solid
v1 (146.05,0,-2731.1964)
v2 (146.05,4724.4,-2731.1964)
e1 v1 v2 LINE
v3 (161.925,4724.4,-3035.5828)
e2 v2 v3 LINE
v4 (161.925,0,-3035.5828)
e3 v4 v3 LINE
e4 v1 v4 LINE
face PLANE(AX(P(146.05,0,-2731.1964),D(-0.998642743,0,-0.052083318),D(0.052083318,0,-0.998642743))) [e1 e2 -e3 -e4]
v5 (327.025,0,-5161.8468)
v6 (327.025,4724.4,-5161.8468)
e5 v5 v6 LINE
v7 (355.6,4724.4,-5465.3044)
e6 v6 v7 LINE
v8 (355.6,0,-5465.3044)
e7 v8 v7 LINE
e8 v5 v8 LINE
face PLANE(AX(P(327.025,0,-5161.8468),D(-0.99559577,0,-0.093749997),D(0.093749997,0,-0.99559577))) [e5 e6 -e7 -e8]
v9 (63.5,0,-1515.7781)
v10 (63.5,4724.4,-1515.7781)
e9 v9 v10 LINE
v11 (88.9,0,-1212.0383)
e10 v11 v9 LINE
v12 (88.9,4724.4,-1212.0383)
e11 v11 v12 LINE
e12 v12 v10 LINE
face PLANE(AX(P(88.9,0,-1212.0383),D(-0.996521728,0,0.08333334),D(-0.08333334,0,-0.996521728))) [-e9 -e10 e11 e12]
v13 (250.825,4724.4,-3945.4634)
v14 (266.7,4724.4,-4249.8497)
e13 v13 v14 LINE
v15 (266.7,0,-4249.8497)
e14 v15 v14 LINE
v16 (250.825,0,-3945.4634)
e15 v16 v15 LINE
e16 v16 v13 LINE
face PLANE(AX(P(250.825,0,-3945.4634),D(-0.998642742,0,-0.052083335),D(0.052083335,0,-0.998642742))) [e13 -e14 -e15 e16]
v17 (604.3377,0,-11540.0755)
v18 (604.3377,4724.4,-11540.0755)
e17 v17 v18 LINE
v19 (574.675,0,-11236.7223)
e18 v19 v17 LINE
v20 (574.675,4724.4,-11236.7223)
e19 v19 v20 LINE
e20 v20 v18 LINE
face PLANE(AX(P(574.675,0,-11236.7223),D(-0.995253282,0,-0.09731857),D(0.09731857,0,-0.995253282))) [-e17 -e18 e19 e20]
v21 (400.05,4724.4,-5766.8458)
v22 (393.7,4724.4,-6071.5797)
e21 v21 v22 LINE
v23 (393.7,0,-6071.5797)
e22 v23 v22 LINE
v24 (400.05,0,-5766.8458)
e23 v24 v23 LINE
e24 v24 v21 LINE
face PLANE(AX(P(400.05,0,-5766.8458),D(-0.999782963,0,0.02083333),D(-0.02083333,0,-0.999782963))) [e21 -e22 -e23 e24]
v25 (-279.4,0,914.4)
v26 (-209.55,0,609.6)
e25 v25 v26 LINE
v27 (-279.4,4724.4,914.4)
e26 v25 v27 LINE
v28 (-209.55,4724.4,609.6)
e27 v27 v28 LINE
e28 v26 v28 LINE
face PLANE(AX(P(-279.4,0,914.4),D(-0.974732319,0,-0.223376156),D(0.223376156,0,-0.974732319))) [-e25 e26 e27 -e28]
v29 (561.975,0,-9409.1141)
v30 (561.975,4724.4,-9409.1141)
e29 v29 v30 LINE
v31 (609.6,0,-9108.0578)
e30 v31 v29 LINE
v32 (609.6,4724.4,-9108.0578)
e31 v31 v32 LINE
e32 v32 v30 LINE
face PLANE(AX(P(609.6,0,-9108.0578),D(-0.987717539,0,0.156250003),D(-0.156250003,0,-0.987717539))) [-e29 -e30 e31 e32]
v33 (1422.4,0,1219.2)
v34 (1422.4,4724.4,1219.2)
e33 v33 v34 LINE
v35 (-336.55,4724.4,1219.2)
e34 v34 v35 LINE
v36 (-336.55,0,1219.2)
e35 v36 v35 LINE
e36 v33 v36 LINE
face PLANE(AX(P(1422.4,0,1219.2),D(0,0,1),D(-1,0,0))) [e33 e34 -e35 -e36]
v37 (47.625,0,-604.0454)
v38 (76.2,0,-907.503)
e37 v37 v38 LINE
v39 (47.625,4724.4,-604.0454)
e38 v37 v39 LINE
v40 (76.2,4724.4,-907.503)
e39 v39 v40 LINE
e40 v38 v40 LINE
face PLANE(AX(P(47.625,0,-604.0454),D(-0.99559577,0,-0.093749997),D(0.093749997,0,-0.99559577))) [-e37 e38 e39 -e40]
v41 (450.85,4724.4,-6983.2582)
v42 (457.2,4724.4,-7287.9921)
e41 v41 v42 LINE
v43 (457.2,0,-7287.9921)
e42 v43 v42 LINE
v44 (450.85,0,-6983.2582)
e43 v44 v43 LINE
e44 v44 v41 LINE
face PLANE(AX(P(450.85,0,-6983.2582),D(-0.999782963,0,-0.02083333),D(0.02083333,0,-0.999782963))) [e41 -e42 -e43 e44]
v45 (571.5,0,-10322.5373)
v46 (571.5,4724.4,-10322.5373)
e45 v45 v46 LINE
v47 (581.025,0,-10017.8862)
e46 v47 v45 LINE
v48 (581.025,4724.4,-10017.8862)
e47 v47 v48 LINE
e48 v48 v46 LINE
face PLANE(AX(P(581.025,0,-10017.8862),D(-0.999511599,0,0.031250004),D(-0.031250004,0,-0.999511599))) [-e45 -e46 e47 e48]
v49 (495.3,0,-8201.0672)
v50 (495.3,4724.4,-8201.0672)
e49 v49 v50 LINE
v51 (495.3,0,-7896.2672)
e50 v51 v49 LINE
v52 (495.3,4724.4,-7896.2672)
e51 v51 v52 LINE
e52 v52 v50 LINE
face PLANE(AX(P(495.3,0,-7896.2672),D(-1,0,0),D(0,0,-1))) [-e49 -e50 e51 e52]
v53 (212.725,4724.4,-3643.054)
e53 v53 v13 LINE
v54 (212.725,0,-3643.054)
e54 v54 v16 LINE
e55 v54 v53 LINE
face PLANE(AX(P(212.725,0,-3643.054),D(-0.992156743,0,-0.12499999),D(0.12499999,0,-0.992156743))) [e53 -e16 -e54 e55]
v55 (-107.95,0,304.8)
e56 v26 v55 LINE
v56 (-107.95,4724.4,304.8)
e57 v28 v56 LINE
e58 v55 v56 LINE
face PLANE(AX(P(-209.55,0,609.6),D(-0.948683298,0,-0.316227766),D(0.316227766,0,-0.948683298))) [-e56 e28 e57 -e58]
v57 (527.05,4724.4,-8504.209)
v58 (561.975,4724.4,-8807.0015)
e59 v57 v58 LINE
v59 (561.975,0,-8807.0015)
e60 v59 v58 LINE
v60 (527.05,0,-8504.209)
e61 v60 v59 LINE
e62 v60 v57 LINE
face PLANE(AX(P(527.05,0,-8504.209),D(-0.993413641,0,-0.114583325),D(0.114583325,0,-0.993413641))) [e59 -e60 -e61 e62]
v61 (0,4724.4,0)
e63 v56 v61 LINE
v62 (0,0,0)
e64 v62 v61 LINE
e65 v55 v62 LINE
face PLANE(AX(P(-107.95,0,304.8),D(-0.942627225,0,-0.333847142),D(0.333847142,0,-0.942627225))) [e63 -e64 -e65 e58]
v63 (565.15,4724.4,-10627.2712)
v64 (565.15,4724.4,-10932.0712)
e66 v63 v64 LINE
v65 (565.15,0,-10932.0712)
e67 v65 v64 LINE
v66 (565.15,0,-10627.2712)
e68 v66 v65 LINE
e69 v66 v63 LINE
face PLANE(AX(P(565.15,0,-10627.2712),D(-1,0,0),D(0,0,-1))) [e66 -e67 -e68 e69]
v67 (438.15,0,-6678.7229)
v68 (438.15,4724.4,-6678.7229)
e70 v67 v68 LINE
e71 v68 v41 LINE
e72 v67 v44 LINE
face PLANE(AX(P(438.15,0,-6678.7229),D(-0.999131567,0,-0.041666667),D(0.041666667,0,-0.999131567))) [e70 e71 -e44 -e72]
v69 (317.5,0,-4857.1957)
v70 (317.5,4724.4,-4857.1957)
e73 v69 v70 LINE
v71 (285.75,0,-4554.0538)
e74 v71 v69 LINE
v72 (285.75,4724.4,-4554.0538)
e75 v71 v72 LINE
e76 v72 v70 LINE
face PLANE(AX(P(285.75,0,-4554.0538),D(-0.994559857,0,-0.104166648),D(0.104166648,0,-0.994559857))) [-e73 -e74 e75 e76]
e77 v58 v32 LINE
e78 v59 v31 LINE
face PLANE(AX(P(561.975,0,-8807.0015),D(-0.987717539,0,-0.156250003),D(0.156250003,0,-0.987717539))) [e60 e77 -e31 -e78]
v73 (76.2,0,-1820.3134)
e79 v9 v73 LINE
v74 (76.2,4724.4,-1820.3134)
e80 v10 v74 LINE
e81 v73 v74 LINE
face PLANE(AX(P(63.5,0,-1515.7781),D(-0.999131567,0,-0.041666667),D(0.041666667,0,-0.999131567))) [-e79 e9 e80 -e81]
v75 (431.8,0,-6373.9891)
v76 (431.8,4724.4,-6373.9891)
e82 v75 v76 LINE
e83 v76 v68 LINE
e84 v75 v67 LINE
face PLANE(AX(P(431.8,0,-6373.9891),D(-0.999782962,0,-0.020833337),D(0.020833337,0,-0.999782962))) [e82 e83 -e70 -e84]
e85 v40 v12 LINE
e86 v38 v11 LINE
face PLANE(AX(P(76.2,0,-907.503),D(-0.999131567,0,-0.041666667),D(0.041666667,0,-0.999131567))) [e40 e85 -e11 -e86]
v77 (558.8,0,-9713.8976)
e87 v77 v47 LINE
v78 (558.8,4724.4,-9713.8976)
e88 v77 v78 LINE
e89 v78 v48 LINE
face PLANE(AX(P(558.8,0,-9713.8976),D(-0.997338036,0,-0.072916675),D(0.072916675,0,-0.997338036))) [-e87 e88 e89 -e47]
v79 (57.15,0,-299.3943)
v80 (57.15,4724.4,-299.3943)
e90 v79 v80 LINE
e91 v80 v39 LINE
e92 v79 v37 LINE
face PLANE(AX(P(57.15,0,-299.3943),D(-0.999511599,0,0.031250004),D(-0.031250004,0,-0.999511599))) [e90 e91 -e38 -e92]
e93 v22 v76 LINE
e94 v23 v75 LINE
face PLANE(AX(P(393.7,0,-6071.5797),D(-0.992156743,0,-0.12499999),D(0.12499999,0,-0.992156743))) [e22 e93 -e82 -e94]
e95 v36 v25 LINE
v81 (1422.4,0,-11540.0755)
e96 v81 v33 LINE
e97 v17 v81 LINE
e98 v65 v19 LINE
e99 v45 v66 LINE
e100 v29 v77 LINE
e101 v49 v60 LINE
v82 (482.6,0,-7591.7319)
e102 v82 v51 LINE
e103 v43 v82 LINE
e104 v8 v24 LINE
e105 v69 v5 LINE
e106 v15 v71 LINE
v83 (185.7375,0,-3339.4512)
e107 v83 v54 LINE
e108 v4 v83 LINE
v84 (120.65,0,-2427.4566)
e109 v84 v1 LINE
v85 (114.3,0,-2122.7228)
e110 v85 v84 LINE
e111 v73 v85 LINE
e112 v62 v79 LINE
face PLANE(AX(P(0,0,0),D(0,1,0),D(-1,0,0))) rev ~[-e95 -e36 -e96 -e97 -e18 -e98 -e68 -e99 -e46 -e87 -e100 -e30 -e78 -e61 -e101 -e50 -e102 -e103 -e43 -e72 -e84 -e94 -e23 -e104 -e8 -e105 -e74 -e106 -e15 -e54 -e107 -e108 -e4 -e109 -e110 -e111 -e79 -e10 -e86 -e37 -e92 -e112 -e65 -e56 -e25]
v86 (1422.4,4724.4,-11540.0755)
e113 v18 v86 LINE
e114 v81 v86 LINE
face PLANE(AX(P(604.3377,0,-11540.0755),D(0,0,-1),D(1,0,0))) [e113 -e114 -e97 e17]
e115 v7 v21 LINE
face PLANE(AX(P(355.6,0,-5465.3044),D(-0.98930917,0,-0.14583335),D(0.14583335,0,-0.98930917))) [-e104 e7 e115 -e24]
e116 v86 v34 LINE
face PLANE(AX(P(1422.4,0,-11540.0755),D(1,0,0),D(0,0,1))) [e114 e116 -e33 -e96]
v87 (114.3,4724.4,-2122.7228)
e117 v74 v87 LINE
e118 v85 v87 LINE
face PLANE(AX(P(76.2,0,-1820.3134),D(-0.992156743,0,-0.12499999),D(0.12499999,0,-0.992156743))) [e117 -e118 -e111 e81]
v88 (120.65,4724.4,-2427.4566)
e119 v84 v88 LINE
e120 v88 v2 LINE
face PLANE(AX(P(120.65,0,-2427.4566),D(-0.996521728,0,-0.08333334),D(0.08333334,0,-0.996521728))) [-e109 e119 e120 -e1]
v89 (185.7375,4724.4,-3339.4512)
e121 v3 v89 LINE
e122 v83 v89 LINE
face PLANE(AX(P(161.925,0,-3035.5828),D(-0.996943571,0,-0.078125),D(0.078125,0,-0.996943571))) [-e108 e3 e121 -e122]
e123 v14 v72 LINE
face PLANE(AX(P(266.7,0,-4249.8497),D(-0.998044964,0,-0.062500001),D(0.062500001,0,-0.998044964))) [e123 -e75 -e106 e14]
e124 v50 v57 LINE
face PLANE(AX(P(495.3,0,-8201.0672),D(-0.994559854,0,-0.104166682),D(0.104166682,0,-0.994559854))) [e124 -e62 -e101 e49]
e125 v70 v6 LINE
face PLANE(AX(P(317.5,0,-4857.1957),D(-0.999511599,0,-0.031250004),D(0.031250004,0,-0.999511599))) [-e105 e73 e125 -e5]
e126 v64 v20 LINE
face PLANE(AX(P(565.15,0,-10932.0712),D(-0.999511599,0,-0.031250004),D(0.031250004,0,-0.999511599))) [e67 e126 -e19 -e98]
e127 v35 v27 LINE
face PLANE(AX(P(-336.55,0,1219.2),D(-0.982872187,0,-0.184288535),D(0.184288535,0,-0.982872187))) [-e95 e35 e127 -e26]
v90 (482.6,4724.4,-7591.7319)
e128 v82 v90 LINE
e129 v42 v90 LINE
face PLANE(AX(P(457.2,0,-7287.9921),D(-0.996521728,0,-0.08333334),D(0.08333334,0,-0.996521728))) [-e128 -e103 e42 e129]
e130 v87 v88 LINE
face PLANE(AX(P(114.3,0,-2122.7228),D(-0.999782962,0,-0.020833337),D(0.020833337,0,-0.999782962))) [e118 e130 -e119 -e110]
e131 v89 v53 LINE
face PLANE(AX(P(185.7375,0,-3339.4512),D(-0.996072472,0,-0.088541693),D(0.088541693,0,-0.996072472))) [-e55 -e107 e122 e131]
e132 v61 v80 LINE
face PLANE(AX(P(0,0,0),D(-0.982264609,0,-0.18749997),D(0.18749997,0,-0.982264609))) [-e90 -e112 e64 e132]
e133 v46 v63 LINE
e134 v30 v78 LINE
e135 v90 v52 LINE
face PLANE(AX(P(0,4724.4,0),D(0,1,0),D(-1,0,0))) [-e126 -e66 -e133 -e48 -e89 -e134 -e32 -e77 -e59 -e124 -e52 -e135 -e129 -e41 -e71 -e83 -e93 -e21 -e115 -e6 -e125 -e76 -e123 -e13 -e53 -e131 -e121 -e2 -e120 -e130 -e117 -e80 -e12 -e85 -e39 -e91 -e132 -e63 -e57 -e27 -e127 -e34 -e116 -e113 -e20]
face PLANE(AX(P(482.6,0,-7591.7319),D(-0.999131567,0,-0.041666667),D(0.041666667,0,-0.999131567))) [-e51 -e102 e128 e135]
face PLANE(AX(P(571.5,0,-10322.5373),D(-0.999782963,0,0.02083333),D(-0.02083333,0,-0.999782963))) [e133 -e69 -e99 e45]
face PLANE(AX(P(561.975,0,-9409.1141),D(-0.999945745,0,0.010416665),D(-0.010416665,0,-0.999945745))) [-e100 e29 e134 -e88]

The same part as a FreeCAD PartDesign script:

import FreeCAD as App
import Part
import Sketcher
from FreeCAD import Vector
Q = App.Units.Quantity


def add_polygon(sketch, points):
    """Adds a closed chain of lines whose ends are joined by coincident constraints."""
    first, n = sketch.GeometryCount, len(points)
    for a, b in zip(points, points[1:] + points[:1]):
        sketch.addGeometry(Part.LineSegment(App.Vector(*a, 0), App.Vector(*b, 0)), False)
    for i in range(n):
        sketch.addConstraint(Sketcher.Constraint("Coincident", first + i, 2, first + (i + 1) % n, 1))

doc = App.newDocument("Part")
body = doc.addObject("PartDesign::Body", "Body")

# Sketch on XZ plane
sketch1 = doc.addObject("Sketcher::SketchObject", "Sketch")
body.addObject(sketch1)
sketch1.AttachmentSupport = (doc.XZ_Plane, [""])
sketch1.MapMode = "FlatFace"
add_polygon(sketch1, [(-279, 914), (-337, 1219), (1422, 1219), (1422, -11540), (604, -11540), (575, -11237), (565, -10932), (565, -10627), (572, -10323), (581, -10018), (559, -9714), (562, -9409), (610, -9108), (562, -8807), (527, -8504), (495, -8201), (495, -7896), (483, -7592), (457, -7288), (451, -6983), (438, -6679), (432, -6374), (394, -6072), (400, -5767), (356, -5465), (327, -5162), (318, -4857), (286, -4554), (267, -4250), (251, -3945), (213, -3643), (186, -3339), (162, -3036), (146, -2731), (121, -2427), (114, -2123), (76, -1820), (64, -1516), (89, -1212), (76, -908), (48, -604), (57, -299), (0, 0), (-108, 305), (-210, 610)])  # lines 0-44
sketch1.addConstraint(Sketcher.Constraint("Horizontal", 1))
sketch1.addConstraint(Sketcher.Constraint("Vertical", 2))
sketch1.addConstraint(Sketcher.Constraint("Horizontal", 3))
sketch1.addConstraint(Sketcher.Constraint("Vertical", 6))
sketch1.addConstraint(Sketcher.Constraint("Vertical", 15))
sketch1.addConstraint(Sketcher.Constraint("Coincident", 41, 2, -1, 1))
sketch1.addConstraint(Sketcher.Constraint("Parallel", 16, 19))
sketch1.addConstraint(Sketcher.Constraint("Parallel", 18, 20))
sketch1.addConstraint(Sketcher.Constraint("Parallel", 7, 22))
sketch1.addConstraint(Sketcher.Constraint("Parallel", 5, 25))
sketch1.addConstraint(Sketcher.Constraint("Parallel", 14, 26))
sketch1.addConstraint(Sketcher.Constraint("Parallel", 21, 29))
sketch1.addConstraint(Sketcher.Constraint("Parallel", 28, 32))
sketch1.addConstraint(Sketcher.Constraint("Parallel", 17, 33))
sketch1.addConstraint(Sketcher.Constraint("Parallel", 20, 34))
sketch1.addConstraint(Sketcher.Constraint("Parallel", 29, 35))
sketch1.addConstraint(Sketcher.Constraint("Parallel", 19, 36))
sketch1.addConstraint(Sketcher.Constraint("Parallel", 36, 38))
sketch1.addConstraint(Sketcher.Constraint("Parallel", 24, 39))
sketch1.addConstraint(Sketcher.Constraint("Parallel", 8, 40))
sketch1.addConstraint(Sketcher.Constraint("Vertical", 10, 2, 12, 2))
sketch1.addConstraint(Sketcher.Constraint("Vertical", 35, 2, 38, 2))
sketch1.addConstraint(Sketcher.Constraint("Equal", 6, 15))
sketch1.addConstraint(Sketcher.Constraint("Equal", 4, 5))
sketch1.addConstraint(Sketcher.Constraint("Equal", 5, 7))
sketch1.addConstraint(Sketcher.Constraint("Equal", 7, 8))
sketch1.addConstraint(Sketcher.Constraint("Equal", 8, 9))
sketch1.addConstraint(Sketcher.Constraint("Equal", 9, 10))
sketch1.addConstraint(Sketcher.Constraint("Equal", 10, 11))
sketch1.addConstraint(Sketcher.Constraint("Equal", 11, 12))
sketch1.addConstraint(Sketcher.Constraint("Equal", 12, 13))
sketch1.addConstraint(Sketcher.Constraint("Equal", 13, 14))
sketch1.addConstraint(Sketcher.Constraint("Equal", 14, 16))
sketch1.addConstraint(Sketcher.Constraint("Equal", 16, 17))
sketch1.addConstraint(Sketcher.Constraint("Equal", 17, 18))
sketch1.addConstraint(Sketcher.Constraint("Equal", 18, 19))
sketch1.addConstraint(Sketcher.Constraint("Equal", 19, 20))
sketch1.addConstraint(Sketcher.Constraint("Equal", 20, 21))
sketch1.addConstraint(Sketcher.Constraint("Equal", 21, 22))
sketch1.addConstraint(Sketcher.Constraint("Equal", 22, 23))
sketch1.addConstraint(Sketcher.Constraint("Equal", 23, 24))
sketch1.addConstraint(Sketcher.Constraint("Equal", 24, 25))
sketch1.addConstraint(Sketcher.Constraint("Equal", 25, 26))
sketch1.addConstraint(Sketcher.Constraint("Equal", 26, 27))
sketch1.addConstraint(Sketcher.Constraint("Equal", 27, 28))
sketch1.addConstraint(Sketcher.Constraint("Equal", 28, 29))
sketch1.addConstraint(Sketcher.Constraint("Equal", 29, 30))
sketch1.addConstraint(Sketcher.Constraint("Equal", 30, 31))
sketch1.addConstraint(Sketcher.Constraint("Equal", 31, 32))
sketch1.addConstraint(Sketcher.Constraint("Equal", 32, 33))
sketch1.addConstraint(Sketcher.Constraint("Equal", 33, 34))
sketch1.addConstraint(Sketcher.Constraint("Equal", 34, 35))
sketch1.addConstraint(Sketcher.Constraint("Equal", 35, 36))
sketch1.addConstraint(Sketcher.Constraint("Equal", 36, 37))
sketch1.addConstraint(Sketcher.Constraint("Equal", 37, 38))
sketch1.addConstraint(Sketcher.Constraint("Equal", 38, 39))
sketch1.addConstraint(Sketcher.Constraint("Equal", 39, 40))
sketch1.addConstraint(Sketcher.Constraint("Equal", 40, 41))
sketch1.addConstraint(Sketcher.Constraint("DistanceY", 6, 1, 6, 2, Q("12 in")))
sketch1.addConstraint(Sketcher.Constraint("Distance", 4, Q("12 in")))
sketch1.addConstraint(Sketcher.Constraint("DistanceY", -1, 1, 0, 2, Q("48 in")))
sketch1.addConstraint(Sketcher.Constraint("DistanceX", -1, 1, 16, 2, Q("19 in")))
sketch1.addConstraint(Sketcher.Constraint("DistanceX", -1, 1, 17, 2, Q("18 in")))
sketch1.addConstraint(Sketcher.Constraint("DistanceX", -1, 1, 20, 2, Q("17 in")))
sketch1.addConstraint(Sketcher.Constraint("DistanceY", -1, 1, 42, 2, Q("12 in")))
sketch1.addConstraint(Sketcher.Constraint("DistanceY", 42, 2, 43, 2, Q("12 in")))
sketch1.addConstraint(Sketcher.Constraint("DistanceY", 44, 2, 0, 2, Q("12 in")))
sketch1.addConstraint(Sketcher.Constraint("DistanceX", -1, 1, 37, 2, Q("3.5 in")))
sketch1.addConstraint(Sketcher.Constraint("DistanceX", 7, 2, 2, 2, Q("33.5 in")))
sketch1.addConstraint(Sketcher.Constraint("DistanceX", 21, 2, 16, 2, Q("3.5 in")))
sketch1.addConstraint(Sketcher.Constraint("DistanceX", 27, 2, 23, 2, Q("3.5 in")))
sketch1.addConstraint(Sketcher.Constraint("DistanceX", 31, 2, 28, 2, Q("3.5 in")))
sketch1.addConstraint(Sketcher.Constraint("DistanceX", 13, 2, 9, 2, Q("1.25 in")))
sketch1.addConstraint(Sketcher.Constraint("DistanceX", 14, 2, 13, 2, Q("1.25 in")))
sketch1.addConstraint(Sketcher.Constraint("DistanceX", 18, 2, 16, 2, Q("1.25 in")))
sketch1.addConstraint(Sketcher.Constraint("DistanceX", 22, 2, 20, 2, Q("1.25 in")))
sketch1.addConstraint(Sketcher.Constraint("DistanceX", 40, 2, 37, 2, Q("1.25 in")))
sketch1.addConstraint(Sketcher.Constraint("DistanceX", -1, 1, 8, 2, Q("22.875 in")))
sketch1.addConstraint(Sketcher.Constraint("DistanceX", -1, 1, 1, 2, Q("56 in")))
sketch1.addConstraint(Sketcher.Constraint("DistanceX", -1, 1, 11, 2, Q("24 in")))
sketch1.addConstraint(Sketcher.Constraint("DistanceX", -1, 1, 23, 2, Q("14 in")))
sketch1.addConstraint(Sketcher.Constraint("DistanceX", 44, 2, -1, 1, Q("11 in")))
sketch1.addConstraint(Sketcher.Constraint("DistanceX", 25, 2, 21, 2, Q("3 in")))
sketch1.addConstraint(Sketcher.Constraint("DistanceX", 0, 2, 42, 2, Q("9 in")))
sketch1.addConstraint(Sketcher.Constraint("DistanceX", 43, 2, 42, 2, Q("4 in")))
sketch1.addConstraint(Sketcher.Constraint("DistanceX", 1, 1, 1, 2, Q("69.25 in")))
sketch1.addConstraint(Sketcher.Constraint("Angle", 11, Q("81.0107 deg")))
sketch1.addConstraint(Sketcher.Constraint("Angle", 30, Q("95.0797 deg")))
sketch1.addConstraint(Sketcher.Constraint("DistanceX", 3, 2, 3, 1, 818.0623))
pad1 = doc.addObject("PartDesign::Pad", "Pad")
body.addObject(pad1)
pad1.Profile = sketch1
pad1.Length = Q("186 in")
pad1.Reversed = True

doc.recompute()
